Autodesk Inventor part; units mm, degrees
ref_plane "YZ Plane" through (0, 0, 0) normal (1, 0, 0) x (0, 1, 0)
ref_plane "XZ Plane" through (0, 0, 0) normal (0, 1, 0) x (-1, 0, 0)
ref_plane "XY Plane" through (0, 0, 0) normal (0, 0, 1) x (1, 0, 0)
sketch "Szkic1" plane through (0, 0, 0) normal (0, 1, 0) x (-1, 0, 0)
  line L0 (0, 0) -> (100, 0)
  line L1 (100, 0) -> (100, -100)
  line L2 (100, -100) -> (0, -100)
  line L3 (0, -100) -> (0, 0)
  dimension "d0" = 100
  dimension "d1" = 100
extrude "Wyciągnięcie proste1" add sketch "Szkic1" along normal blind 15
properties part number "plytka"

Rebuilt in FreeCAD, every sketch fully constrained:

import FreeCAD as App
import Part
import Sketcher
from FreeCAD import Vector
Q = App.Units.Quantity


def add_polygon(sketch, points):
    """Adds a closed chain of lines whose ends are joined by coincident constraints."""
    first, n = sketch.GeometryCount, len(points)
    for a, b in zip(points, points[1:] + points[:1]):
        sketch.addGeometry(Part.LineSegment(App.Vector(*a, 0), App.Vector(*b, 0)), False)
    for i in range(n):
        sketch.addConstraint(Sketcher.Constraint("Coincident", first + i, 2, first + (i + 1) % n, 1))

doc = App.newDocument("Part")
body = doc.addObject("PartDesign::Body", "Body")

sketch1 = body.newObject("Sketcher::SketchObject", "Sketch")
sketch1.AttachmentSupport = (doc.getObject("XZ_Plane"), [""])
sketch1.MapMode = "FlatFace"
add_polygon(sketch1, [(-100, 0), (0, 0), (0, -100), (-100, -100)])
sketch1.addConstraint(Sketcher.Constraint("Horizontal", 0))
sketch1.addConstraint(Sketcher.Constraint("Vertical", 1))
sketch1.addConstraint(Sketcher.Constraint("Horizontal", 2))
sketch1.addConstraint(Sketcher.Constraint("Vertical", 3))
sketch1.addConstraint(Sketcher.Constraint("Coincident", 0, 2, -1, 1))
sketch1.addConstraint(Sketcher.Constraint("Equal", 2, 1))
sketch1.addConstraint(Sketcher.Constraint("DistanceX", 0, 1, 0, 2, Q("100 mm")))
pad1 = body.newObject("PartDesign::Pad", "Pad")
pad1.Profile = sketch1
pad1.Length = 15
pad1.Reversed = True

doc.recompute()
